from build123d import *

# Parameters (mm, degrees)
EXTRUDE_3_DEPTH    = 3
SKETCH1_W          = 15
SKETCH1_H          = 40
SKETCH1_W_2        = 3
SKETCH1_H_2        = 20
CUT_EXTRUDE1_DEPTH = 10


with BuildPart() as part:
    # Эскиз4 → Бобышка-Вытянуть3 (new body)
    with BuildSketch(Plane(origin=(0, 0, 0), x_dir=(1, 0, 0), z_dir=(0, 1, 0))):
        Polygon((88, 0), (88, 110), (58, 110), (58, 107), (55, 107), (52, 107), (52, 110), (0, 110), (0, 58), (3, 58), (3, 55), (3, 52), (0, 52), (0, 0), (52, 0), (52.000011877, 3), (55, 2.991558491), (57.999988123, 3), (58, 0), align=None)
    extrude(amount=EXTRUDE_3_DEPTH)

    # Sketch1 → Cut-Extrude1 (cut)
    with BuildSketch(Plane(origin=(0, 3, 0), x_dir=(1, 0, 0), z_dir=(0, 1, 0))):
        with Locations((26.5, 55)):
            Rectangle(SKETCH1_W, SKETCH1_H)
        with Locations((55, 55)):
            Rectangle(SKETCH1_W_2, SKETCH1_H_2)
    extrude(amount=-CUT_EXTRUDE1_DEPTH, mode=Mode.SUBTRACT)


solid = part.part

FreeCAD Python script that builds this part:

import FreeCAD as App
import Part
import Sketcher
from FreeCAD import Vector
Q = App.Units.Quantity

doc = App.newDocument("Part")
body = doc.addObject("PartDesign::Body", "Body")

sketch1 = body.newObject("Sketcher::SketchObject", "Sketch")
sketch1.AttachmentSupport = (doc.getObject("XZ_Plane"), [""])
sketch1.MapMode = "FlatFace"
sketch1.addGeometry([
    Part.LineSegment(Vector(88, 0, 0), Vector(88, -110, 0)),
    Part.LineSegment(Vector(88, -110, 0), Vector(58, -110, 0)),
    Part.LineSegment(Vector(58, -110, 0), Vector(58, -107, 0)),
    Part.LineSegment(Vector(58, -107, 0), Vector(52, -107, 0)),
    Part.LineSegment(Vector(52, -107, 0), Vector(52, -110, 0)),
    Part.LineSegment(Vector(52, -110, 0), Vector(0, -110, 0)),
    Part.LineSegment(Vector(0, -110, 0), Vector(0, -58, 0)),
    Part.LineSegment(Vector(0, -58, 0), Vector(3, -58, 0)),
    Part.LineSegment(Vector(3, -58, 0), Vector(3, -52, 0)),
    Part.LineSegment(Vector(3, -52, 0), Vector(0, -52, 0)),
    Part.LineSegment(Vector(0, -52, 0), Vector(0, 0, 0)),
    Part.LineSegment(Vector(0, 0, 0), Vector(52, 0, 0)),
    Part.LineSegment(Vector(52, 0, 0), Vector(52.000012, -3, 0)),
    Part.LineSegment(Vector(52.000012, -3, 0), Vector(55, -2.991558, 0)),
    Part.LineSegment(Vector(55, -2.991558, 0), Vector(57.999988, -3, 0)),
    Part.LineSegment(Vector(57.999988, -3, 0), Vector(58, 0, 0)),
    Part.LineSegment(Vector(58, 0, 0), Vector(88, 0, 0)),
], False)
sketch1.addConstraint([
    Sketcher.Constraint("Coincident", 0, 2, 1, 1),
    Sketcher.Constraint("Coincident", 1, 2, 2, 1),
    Sketcher.Constraint("Coincident", 2, 2, 3, 1),
    Sketcher.Constraint("Coincident", 3, 2, 4, 1),
    Sketcher.Constraint("Coincident", 4, 2, 5, 1),
    Sketcher.Constraint("Coincident", 5, 2, 6, 1),
    Sketcher.Constraint("Coincident", 6, 2, 7, 1),
    Sketcher.Constraint("Coincident", 7, 2, 8, 1),
    Sketcher.Constraint("Coincident", 8, 2, 9, 1),
    Sketcher.Constraint("Coincident", 9, 2, 10, 1),
    Sketcher.Constraint("Coincident", 10, 2, 11, 1),
    Sketcher.Constraint("Coincident", 11, 2, 12, 1),
    Sketcher.Constraint("Coincident", 12, 2, 13, 1),
    Sketcher.Constraint("Coincident", 13, 2, 14, 1),
    Sketcher.Constraint("Coincident", 14, 2, 15, 1),
    Sketcher.Constraint("Coincident", 15, 2, 16, 1),
    Sketcher.Constraint("Coincident", 16, 2, 0, 1),
    Sketcher.Constraint("Vertical", 0),
    Sketcher.Constraint("Horizontal", 1),
    Sketcher.Constraint("Vertical", 2),
    Sketcher.Constraint("Horizontal", 3),
    Sketcher.Constraint("Vertical", 4),
    Sketcher.Constraint("Horizontal", 5),
    Sketcher.Constraint("Vertical", 6),
    Sketcher.Constraint("Horizontal", 7),
    Sketcher.Constraint("Vertical", 8),
    Sketcher.Constraint("Horizontal", 9),
    Sketcher.Constraint("Vertical", 10),
    Sketcher.Constraint("Horizontal", 11),
    Sketcher.Constraint("Horizontal", 16),
    Sketcher.Constraint("Coincident", 10, 2, -1, 1),
    Sketcher.Constraint("PointOnObject", 5, 2, -2),
    Sketcher.Constraint("PointOnObject", 15, 2, -1),
    Sketcher.Constraint("Horizontal", 1, 2, 4, 2),
    Sketcher.Constraint("Horizontal", 12, 2, 14, 2),
    Sketcher.Constraint("Vertical", 4, 2, 11, 2),
    Sketcher.Constraint("Vertical", 2, 2, 15, 2),
    Sketcher.Constraint("Equal", 9, 2),
    Sketcher.Constraint("Equal", 11, 6),
    Sketcher.Constraint("Equal", 3, 8),
    Sketcher.Constraint("Equal", 6, 10),
    Sketcher.Constraint("Equal", 12, 13),
    Sketcher.Constraint("Equal", 13, 14),
    Sketcher.Constraint("DistanceX", 1, 2, 1, 1, Q("30 mm")),
    Sketcher.Constraint("DistanceX", 3, 2, 3, 1, Q("6 mm")),
    Sketcher.Constraint("DistanceX", 5, 2, 5, 1, Q("52 mm")),
    Sketcher.Constraint("DistanceX", 7, 1, 7, 2, Q("3 mm")),
    Sketcher.Constraint("Distance", 12, Q("3 mm")),
    Sketcher.Constraint("DistanceX", -1, 1, 13, 2, Q("55 mm")),
    Sketcher.Constraint("DistanceY", 13, 2, -1, 1, Q("2.991558 mm")),
])
pad1 = body.newObject("PartDesign::Pad", "Pad")
pad1.Profile = sketch1
pad1.Length = 3
pad1.Reversed = True

sketch2 = body.newObject("Sketcher::SketchObject", "Sketch001")
sketch2.AttachmentSupport = (doc.getObject("XZ_Plane"), [""])
sketch2.MapMode = "FlatFace"
sketch2.AttachmentOffset = App.Placement(Vector(0, 0, -3), App.Rotation())
sketch2.addGeometry([
    Part.LineSegment(Vector(19, -75, 0), Vector(19, -35, 0)),
    Part.LineSegment(Vector(19, -35, 0), Vector(34, -35, 0)),
    Part.LineSegment(Vector(34, -35, 0), Vector(34, -75, 0)),
    Part.LineSegment(Vector(34, -75, 0), Vector(19, -75, 0)),
    Part.LineSegment(Vector(53.5, -65, 0), Vector(53.5, -45, 0)),
    Part.LineSegment(Vector(53.5, -45, 0), Vector(56.5, -45, 0)),
    Part.LineSegment(Vector(56.5, -45, 0), Vector(56.5, -65, 0)),
    Part.LineSegment(Vector(56.5, -65, 0), Vector(53.5, -65, 0)),
], False)
sketch2.addConstraint([
    Sketcher.Constraint("Coincident", 0, 2, 1, 1),
    Sketcher.Constraint("Coincident", 1, 2, 2, 1),
    Sketcher.Constraint("Coincident", 2, 2, 3, 1),
    Sketcher.Constraint("Coincident", 3, 2, 0, 1),
    Sketcher.Constraint("Coincident", 4, 2, 5, 1),
    Sketcher.Constraint("Coincident", 5, 2, 6, 1),
    Sketcher.Constraint("Coincident", 6, 2, 7, 1),
    Sketcher.Constraint("Coincident", 7, 2, 4, 1),
    Sketcher.Constraint("Vertical", 0),
    Sketcher.Constraint("Horizontal", 1),
    Sketcher.Constraint("Vertical", 2),
    Sketcher.Constraint("Horizontal", 3),
    Sketcher.Constraint("Vertical", 4),
    Sketcher.Constraint("Horizontal", 5),
    Sketcher.Constraint("Vertical", 6),
    Sketcher.Constraint("Horizontal", 7),
    Sketcher.Constraint("DistanceX", 1, 1, 1, 2, Q("15 mm")),
    Sketcher.Constraint("DistanceX", 5, 1, 5, 2, Q("3 mm")),
    Sketcher.Constraint("DistanceY", 0, 1, 0, 2, Q("40 mm")),
    Sketcher.Constraint("DistanceY", 4, 1, 4, 2, Q("20 mm")),
    Sketcher.Constraint("DistanceX", -1, 1, 0, 2, Q("19 mm")),
    Sketcher.Constraint("DistanceY", 0, 2, -1, 1, Q("35 mm")),
    Sketcher.Constraint("DistanceY", 4, 2, -1, 1, Q("45 mm")),
    Sketcher.Constraint("DistanceX", -1, 1, 4, 2, Q("53.5 mm")),
])
pocket1 = body.newObject("PartDesign::Pocket", "Pocket")
pocket1.Profile = sketch2
pocket1.Length = 10
pocket1.Reversed = True

doc.recompute()
